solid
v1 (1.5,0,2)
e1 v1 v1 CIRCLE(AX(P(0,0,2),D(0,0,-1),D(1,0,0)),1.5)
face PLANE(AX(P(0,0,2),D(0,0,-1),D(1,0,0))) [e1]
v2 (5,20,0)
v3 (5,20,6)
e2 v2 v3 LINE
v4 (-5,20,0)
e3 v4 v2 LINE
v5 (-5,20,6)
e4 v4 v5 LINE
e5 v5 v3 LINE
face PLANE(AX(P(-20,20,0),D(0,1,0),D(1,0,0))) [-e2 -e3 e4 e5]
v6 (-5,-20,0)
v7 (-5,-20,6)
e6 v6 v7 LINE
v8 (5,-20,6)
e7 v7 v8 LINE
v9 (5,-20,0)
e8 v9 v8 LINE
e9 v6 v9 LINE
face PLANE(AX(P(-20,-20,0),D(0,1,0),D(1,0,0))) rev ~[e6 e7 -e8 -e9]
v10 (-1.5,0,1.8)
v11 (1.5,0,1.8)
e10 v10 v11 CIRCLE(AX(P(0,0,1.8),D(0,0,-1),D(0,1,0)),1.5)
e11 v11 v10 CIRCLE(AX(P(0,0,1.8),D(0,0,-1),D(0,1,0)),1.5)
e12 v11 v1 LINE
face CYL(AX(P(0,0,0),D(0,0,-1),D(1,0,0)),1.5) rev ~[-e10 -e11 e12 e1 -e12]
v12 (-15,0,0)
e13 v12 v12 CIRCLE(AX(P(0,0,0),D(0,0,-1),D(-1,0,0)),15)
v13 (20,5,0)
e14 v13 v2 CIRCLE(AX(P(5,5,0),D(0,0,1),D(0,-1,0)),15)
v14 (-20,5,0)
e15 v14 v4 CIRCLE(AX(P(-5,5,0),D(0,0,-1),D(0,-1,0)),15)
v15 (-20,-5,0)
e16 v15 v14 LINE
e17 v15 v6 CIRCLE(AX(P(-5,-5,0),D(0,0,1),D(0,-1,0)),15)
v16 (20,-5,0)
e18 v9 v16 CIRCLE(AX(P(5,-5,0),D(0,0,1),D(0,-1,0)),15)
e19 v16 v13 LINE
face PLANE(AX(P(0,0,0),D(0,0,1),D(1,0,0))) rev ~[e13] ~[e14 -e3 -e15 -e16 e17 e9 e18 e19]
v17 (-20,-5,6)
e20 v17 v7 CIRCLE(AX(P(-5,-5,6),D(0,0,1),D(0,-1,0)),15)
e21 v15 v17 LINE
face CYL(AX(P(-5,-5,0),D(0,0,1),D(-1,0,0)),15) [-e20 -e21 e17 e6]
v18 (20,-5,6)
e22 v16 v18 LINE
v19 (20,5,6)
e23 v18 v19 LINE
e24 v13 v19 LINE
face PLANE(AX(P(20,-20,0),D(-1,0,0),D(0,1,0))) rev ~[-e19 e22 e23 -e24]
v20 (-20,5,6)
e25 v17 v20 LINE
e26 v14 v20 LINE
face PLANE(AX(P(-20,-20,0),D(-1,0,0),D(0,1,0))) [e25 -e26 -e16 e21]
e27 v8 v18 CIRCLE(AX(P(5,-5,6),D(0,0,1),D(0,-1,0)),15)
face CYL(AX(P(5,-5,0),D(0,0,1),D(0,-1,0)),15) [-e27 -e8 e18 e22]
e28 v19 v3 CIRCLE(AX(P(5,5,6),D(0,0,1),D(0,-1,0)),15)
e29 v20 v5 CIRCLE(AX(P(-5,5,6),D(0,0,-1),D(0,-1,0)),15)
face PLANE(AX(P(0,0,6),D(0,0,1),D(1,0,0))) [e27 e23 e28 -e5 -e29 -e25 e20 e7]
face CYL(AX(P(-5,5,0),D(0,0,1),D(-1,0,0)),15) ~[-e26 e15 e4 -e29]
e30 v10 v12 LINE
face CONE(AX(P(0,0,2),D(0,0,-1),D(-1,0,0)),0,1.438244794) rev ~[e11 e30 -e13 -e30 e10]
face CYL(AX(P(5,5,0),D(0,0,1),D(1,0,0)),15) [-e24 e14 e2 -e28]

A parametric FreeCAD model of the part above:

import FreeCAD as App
import Part
import Sketcher
Q = App.Units.Quantity


def edges_at(feature, points):
    """Names of the edges that pass closest to the given points."""
    edges = feature.Shape.Edges
    near = lambda p: min(range(len(edges)), key=lambda i: edges[i].distToShape(Part.Vertex(*p))[0])
    return sorted({f"Edge{near(p) + 1}" for p in points})


def add_polygon(sketch, points):
    """Adds a closed chain of lines whose ends are joined by coincident constraints."""
    first, n = sketch.GeometryCount, len(points)
    for a, b in zip(points, points[1:] + points[:1]):
        sketch.addGeometry(Part.LineSegment(App.Vector(*a, 0), App.Vector(*b, 0)), False)
    for i in range(n):
        sketch.addConstraint(Sketcher.Constraint("Coincident", first + i, 2, first + (i + 1) % n, 1))

doc = App.newDocument("Part")
body = doc.addObject("PartDesign::Body", "Body")

sketch1 = body.newObject("Sketcher::SketchObject", "Sketch")
sketch1.AttachmentSupport = (doc.getObject("XY_Plane"), [""])
sketch1.MapMode = "FlatFace"
add_polygon(sketch1, [(-20, 20), (-20, -20), (20, -20), (20, 20)])
sketch1.addConstraint([
    Sketcher.Constraint("Vertical", 0),
    Sketcher.Constraint("Horizontal", 1),
    Sketcher.Constraint("Vertical", 2),
    Sketcher.Constraint("Horizontal", 3),
    Sketcher.Constraint("Symmetric", 0, 2, 2, 2, -1, 1),
    Sketcher.Constraint("Equal", 3, 0),
    Sketcher.Constraint("DistanceX", 1, 1, 1, 2, Q("40 mm")),
])
pad1 = body.newObject("PartDesign::Pad", "Pad")
pad1.Profile = sketch1
pad1.Length = 6
doc.recompute()

fillet = body.newObject("PartDesign::Fillet", "Fillet")
fillet.Base = (pad1, edges_at(pad1, [
    (-20, 20, 3),
    (20, 20, 3),
    (20, -20, 3),
    (-20, -20, 3),
]))
fillet.Radius = 15

sketch2 = body.newObject("Sketcher::SketchObject", "Sketch001")
sketch2.AttachmentSupport = (doc.getObject("XY_Plane"), [""])
sketch2.MapMode = "FlatFace"
sketch2.addGeometry(Part.Circle(App.Vector(0, 0, 0), App.Vector(0, 0, 1), 1.5), False)
sketch2.addConstraint([
    Sketcher.Constraint("Coincident", 0, 3, -1, 1),
    Sketcher.Constraint("Diameter", 0, Q("3 mm")),
])
pocket1 = body.newObject("PartDesign::Pocket", "Pocket")
pocket1.Profile = sketch2
pocket1.Length = 2
pocket1.Reversed = True

sketch3 = body.newObject("Sketcher::SketchObject", "Sketch002")
sketch3.AttachmentSupport = (doc.getObject("XZ_Plane"), [""])
sketch3.MapMode = "FlatFace"
add_polygon(sketch3, [(0, 0), (0, 2), (-15, 0)])
sketch3.addConstraint([
    Sketcher.Constraint("Vertical", 0),
    Sketcher.Constraint("Horizontal", 2),
    Sketcher.Constraint("Coincident", 2, 2, -1, 1),
    Sketcher.Constraint("DistanceX", 2, 1, 2, 2, Q("15 mm")),
    Sketcher.Constraint("DistanceY", 0, 1, 0, 2, Q("2 mm")),
])
groove = body.newObject("PartDesign::Groove", "Groove")
groove.Profile = sketch3
groove.ReferenceAxis = (sketch3, ["V_Axis"])
groove.Angle = 360

doc.recompute()
